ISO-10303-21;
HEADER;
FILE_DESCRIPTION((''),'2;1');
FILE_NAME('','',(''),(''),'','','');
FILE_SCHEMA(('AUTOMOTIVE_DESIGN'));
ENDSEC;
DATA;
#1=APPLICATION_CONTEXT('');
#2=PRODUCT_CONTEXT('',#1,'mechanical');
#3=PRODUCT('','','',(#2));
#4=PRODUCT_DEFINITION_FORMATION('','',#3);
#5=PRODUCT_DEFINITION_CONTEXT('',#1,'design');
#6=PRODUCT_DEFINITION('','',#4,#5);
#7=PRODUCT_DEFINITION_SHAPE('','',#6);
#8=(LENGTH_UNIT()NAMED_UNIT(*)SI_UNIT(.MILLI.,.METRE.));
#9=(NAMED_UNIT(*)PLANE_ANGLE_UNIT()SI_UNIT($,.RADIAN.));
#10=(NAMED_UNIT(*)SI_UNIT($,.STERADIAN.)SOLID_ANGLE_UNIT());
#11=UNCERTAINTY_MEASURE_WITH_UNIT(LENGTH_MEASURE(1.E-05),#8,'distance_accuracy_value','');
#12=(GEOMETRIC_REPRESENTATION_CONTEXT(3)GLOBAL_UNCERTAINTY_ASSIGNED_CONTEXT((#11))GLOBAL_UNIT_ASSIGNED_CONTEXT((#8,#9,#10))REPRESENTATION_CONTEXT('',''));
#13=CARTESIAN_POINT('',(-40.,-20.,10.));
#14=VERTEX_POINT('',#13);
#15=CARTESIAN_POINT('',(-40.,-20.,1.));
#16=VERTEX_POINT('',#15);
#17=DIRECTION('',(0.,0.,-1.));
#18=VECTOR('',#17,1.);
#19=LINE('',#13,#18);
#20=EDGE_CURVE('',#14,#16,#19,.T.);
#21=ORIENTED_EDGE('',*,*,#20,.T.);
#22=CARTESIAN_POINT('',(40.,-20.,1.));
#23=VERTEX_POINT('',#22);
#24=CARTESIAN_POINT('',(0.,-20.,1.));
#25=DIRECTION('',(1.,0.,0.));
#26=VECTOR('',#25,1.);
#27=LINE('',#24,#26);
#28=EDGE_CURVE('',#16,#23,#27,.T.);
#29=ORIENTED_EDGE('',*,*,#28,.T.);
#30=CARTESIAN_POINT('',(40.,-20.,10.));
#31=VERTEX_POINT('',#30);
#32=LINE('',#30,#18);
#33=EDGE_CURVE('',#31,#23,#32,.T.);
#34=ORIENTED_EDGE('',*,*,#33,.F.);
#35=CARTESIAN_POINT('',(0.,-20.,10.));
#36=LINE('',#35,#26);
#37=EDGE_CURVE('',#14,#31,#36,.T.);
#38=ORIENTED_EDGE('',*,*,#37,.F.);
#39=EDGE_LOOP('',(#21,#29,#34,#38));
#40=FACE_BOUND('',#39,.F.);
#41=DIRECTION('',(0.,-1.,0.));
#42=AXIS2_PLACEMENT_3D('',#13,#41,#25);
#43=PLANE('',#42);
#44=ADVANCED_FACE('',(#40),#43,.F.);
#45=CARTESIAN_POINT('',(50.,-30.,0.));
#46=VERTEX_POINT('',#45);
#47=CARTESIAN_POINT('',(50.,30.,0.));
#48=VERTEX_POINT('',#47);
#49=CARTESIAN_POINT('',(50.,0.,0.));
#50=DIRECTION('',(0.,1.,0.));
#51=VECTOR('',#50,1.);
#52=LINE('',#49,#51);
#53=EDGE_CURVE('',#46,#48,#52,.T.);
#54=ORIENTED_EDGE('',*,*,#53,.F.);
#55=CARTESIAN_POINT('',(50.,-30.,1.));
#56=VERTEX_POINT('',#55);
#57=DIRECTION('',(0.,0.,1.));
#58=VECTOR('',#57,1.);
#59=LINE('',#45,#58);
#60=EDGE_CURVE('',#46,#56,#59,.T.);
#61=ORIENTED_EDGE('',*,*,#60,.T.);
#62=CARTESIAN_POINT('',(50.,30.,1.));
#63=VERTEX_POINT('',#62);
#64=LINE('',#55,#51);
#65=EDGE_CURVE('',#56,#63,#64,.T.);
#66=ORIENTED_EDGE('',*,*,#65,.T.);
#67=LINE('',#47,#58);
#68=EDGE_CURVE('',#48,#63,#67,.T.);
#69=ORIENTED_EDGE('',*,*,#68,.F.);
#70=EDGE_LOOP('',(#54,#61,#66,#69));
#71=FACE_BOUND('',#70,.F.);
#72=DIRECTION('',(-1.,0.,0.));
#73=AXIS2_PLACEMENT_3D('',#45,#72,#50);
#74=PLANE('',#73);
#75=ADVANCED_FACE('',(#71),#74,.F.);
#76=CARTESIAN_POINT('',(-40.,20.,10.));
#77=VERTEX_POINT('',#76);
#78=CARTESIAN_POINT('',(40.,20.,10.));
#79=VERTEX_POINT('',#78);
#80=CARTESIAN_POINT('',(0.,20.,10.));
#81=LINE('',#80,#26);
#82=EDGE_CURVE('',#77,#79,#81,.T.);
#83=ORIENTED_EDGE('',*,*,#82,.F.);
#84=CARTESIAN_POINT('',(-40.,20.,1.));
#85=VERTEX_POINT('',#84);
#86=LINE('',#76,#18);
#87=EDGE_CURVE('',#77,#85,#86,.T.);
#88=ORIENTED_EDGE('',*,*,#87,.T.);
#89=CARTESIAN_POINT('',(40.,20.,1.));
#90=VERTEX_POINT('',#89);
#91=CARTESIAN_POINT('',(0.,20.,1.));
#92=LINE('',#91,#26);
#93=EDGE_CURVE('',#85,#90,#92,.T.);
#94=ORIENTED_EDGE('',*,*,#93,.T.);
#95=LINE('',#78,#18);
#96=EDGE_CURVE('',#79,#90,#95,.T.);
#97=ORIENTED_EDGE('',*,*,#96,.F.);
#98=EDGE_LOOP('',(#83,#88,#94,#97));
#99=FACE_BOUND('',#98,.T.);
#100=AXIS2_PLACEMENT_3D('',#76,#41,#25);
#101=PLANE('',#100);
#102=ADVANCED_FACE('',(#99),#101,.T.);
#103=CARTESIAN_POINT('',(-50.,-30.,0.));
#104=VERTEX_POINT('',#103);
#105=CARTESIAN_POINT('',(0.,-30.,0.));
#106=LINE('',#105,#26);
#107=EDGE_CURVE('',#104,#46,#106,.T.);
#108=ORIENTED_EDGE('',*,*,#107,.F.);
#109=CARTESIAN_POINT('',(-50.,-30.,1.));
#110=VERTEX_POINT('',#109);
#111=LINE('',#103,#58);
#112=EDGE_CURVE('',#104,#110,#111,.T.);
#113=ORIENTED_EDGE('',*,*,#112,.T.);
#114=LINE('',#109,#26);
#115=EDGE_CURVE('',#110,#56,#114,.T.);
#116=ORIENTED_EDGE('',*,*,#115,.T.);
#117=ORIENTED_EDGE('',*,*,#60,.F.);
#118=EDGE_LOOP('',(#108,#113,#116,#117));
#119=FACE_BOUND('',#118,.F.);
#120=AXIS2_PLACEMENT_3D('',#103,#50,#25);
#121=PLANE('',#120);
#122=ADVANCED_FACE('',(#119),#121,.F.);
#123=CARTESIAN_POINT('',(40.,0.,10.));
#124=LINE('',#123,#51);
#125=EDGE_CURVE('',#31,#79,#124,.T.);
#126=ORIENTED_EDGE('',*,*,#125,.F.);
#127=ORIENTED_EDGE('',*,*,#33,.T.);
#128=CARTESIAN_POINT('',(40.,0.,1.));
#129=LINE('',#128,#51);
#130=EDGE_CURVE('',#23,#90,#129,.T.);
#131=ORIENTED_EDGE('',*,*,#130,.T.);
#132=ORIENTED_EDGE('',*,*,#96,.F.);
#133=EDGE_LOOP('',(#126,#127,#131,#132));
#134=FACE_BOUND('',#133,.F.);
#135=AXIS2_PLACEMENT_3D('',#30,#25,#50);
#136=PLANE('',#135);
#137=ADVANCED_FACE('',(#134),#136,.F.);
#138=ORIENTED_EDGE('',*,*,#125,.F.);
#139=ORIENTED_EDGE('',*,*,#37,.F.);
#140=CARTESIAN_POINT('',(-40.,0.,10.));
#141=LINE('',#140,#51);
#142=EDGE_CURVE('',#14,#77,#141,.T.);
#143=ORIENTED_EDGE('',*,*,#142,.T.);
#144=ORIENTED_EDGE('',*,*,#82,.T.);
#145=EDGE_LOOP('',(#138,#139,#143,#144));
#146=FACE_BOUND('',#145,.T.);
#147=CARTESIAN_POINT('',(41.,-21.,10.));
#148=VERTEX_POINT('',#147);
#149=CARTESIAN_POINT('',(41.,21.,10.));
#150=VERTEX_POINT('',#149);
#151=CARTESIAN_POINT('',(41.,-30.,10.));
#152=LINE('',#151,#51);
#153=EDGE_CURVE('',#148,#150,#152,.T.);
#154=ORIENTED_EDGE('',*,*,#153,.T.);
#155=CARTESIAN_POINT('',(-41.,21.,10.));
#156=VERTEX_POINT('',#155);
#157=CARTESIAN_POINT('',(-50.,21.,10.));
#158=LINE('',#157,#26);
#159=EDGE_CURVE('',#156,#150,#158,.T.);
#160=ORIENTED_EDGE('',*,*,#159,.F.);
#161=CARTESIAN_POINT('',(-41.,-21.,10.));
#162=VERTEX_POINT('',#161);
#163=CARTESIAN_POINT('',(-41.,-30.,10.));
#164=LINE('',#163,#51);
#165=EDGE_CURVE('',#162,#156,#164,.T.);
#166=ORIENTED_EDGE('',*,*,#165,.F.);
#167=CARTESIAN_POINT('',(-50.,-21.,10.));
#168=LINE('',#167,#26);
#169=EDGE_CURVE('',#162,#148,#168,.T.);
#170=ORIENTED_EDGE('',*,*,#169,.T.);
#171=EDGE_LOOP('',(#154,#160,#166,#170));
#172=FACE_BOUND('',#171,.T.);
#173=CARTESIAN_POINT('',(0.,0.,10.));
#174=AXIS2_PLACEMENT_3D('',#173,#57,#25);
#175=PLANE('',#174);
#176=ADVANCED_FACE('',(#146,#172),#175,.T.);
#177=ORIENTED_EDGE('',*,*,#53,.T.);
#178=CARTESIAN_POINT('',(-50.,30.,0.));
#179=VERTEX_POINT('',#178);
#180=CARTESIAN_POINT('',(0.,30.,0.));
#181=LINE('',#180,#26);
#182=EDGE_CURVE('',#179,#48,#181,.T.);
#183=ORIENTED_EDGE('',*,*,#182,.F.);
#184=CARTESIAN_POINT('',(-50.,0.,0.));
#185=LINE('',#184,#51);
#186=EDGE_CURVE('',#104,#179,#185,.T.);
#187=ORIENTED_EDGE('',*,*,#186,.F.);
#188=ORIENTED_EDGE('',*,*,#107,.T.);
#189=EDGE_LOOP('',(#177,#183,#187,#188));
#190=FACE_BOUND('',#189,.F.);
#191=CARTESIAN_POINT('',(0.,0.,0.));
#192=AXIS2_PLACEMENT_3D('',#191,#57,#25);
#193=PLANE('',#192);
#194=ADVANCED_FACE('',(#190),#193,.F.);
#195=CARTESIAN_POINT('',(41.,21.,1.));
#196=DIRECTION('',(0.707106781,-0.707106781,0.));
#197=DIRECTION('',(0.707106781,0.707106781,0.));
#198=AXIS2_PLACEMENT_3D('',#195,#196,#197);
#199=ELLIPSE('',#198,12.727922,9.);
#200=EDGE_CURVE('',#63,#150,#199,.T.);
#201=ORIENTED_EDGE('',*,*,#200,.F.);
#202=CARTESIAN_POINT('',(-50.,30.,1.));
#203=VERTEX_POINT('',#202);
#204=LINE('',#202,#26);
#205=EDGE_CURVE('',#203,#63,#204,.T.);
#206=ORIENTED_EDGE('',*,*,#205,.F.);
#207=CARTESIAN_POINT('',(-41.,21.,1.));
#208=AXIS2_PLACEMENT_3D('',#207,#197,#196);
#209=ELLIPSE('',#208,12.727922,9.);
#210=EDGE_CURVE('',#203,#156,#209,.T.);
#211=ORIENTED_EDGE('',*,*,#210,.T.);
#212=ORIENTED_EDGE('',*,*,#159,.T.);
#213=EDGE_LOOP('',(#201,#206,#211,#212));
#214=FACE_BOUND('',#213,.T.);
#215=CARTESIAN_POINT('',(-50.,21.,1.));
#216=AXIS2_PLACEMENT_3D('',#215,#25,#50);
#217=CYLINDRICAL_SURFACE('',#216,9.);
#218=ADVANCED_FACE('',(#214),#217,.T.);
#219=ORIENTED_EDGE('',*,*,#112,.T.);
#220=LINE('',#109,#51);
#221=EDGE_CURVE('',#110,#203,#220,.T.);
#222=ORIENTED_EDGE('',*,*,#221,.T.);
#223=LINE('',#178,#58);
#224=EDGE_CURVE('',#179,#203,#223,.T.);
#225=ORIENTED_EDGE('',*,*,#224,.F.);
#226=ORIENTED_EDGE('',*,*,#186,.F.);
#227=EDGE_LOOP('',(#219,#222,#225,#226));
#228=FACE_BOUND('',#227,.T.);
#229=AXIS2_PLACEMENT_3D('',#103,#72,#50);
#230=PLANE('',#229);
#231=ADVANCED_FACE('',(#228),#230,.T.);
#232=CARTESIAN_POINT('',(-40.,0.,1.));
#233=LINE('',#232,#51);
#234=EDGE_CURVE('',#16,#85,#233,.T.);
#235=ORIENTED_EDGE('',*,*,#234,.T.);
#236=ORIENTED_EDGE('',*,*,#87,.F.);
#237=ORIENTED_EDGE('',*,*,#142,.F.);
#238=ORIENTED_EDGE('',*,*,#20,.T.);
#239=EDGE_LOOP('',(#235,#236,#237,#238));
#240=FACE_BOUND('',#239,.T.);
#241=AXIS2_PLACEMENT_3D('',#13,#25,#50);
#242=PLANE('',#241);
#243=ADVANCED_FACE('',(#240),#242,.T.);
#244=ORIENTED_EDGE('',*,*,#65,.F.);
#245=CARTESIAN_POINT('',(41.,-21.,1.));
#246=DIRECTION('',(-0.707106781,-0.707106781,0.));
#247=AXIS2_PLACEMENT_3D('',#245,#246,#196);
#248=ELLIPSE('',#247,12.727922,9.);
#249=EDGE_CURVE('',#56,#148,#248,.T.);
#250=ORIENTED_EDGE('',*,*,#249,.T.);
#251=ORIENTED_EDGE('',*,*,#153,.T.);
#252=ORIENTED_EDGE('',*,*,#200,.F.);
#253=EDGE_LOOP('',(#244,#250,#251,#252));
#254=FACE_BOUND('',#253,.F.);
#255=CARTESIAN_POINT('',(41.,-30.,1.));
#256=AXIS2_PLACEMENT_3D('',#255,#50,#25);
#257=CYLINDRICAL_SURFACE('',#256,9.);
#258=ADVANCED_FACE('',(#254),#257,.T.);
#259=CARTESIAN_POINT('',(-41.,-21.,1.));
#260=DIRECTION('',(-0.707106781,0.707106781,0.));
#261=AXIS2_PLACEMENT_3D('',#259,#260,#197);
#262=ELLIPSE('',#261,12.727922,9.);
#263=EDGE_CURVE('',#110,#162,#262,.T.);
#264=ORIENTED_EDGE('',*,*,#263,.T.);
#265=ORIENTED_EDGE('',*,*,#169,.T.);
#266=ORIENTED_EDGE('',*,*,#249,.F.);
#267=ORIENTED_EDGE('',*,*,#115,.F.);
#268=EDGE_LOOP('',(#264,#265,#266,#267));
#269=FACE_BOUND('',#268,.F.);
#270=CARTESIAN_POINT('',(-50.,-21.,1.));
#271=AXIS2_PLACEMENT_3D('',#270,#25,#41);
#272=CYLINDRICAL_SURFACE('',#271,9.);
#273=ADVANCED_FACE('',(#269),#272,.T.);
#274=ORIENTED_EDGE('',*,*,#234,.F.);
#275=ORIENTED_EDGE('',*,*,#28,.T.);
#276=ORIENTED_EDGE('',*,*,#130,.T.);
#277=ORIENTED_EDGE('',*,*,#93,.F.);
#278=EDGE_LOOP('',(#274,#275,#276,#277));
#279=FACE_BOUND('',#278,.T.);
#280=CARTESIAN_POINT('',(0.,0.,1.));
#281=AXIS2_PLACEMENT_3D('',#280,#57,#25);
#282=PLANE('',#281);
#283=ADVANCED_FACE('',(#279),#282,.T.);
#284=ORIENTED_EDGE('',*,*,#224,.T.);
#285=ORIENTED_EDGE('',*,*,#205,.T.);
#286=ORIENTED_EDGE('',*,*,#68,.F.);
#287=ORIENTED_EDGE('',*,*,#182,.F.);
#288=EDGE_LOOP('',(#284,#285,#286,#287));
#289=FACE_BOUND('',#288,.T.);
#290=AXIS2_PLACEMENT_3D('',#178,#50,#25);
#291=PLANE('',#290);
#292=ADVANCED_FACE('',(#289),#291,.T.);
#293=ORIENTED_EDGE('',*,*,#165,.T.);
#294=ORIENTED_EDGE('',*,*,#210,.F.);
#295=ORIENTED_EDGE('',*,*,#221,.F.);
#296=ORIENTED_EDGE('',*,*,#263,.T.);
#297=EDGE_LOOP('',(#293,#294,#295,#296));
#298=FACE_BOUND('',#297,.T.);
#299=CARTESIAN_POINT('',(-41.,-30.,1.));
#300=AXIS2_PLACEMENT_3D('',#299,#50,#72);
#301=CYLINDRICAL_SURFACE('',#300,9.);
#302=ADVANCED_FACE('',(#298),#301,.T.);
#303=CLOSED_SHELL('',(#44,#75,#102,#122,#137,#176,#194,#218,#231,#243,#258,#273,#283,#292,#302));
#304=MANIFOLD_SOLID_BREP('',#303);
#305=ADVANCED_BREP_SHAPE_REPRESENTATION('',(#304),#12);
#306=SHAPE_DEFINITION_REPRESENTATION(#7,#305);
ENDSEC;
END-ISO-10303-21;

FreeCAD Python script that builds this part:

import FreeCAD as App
import Part
import Sketcher
Q = App.Units.Quantity


def edges_at(feature, points):
    """Names of the edges that pass closest to the given points."""
    edges = feature.Shape.Edges
    near = lambda p: min(range(len(edges)), key=lambda i: edges[i].distToShape(Part.Vertex(*p))[0])
    return sorted({f"Edge{near(p) + 1}" for p in points})

doc = App.newDocument("Part")
body = doc.addObject("PartDesign::Body", "Body")

# Sketch on XY plane
sketch1 = body.newObject("Sketcher::SketchObject", "Sketch")
sketch1.AttachmentSupport = (doc.getObject("XY_Plane"), [""])
sketch1.MapMode = "FlatFace"
sketch1.addGeometry(Part.LineSegment(App.Vector(-50, 30, 0), App.Vector(-50, -30, 0)), False)
sketch1.addGeometry(Part.LineSegment(App.Vector(-50, -30, 0), App.Vector(50, -30, 0)), False)
sketch1.addGeometry(Part.LineSegment(App.Vector(50, -30, 0), App.Vector(50, 30, 0)), False)
sketch1.addGeometry(Part.LineSegment(App.Vector(50, 30, 0), App.Vector(-50, 30, 0)), False)
sketch1.addConstraint(Sketcher.Constraint("Coincident", 0, 2, 1, 1))
sketch1.addConstraint(Sketcher.Constraint("Coincident", 1, 2, 2, 1))
sketch1.addConstraint(Sketcher.Constraint("Coincident", 2, 2, 3, 1))
sketch1.addConstraint(Sketcher.Constraint("Coincident", 3, 2, 0, 1))
sketch1.addConstraint(Sketcher.Constraint("Vertical", 0))
sketch1.addConstraint(Sketcher.Constraint("Horizontal", 1))
sketch1.addConstraint(Sketcher.Constraint("Vertical", 2))
sketch1.addConstraint(Sketcher.Constraint("Horizontal", 3))
sketch1.addConstraint(Sketcher.Constraint("Symmetric", 0, 2, 2, 2, -1, 1))
sketch1.addConstraint(Sketcher.Constraint("DistanceX", 1, 1, 1, 2, Q("100 mm")))
sketch1.addConstraint(Sketcher.Constraint("DistanceY", 0, 2, 0, 1, Q("60 mm")))
pad1 = body.newObject("PartDesign::Pad", "Pad")
pad1.Profile = sketch1
pad1.Length = 10
doc.recompute()

fillet = body.newObject("PartDesign::Fillet", "Fillet")
fillet.Base = (pad1, edges_at(pad1, [
    (0, -30, 10),
    (50, 0, 10),
    (0, 30, 10),
    (-50, 0, 10),
]))
fillet.Radius = 9

# Sketch on XY plane
sketch2 = body.newObject("Sketcher::SketchObject", "Sketch001")
sketch2.AttachmentSupport = (doc.getObject("XY_Plane"), [""])
sketch2.MapMode = "FlatFace"
sketch2.AttachmentOffset = App.Placement(App.Vector(0, 0, 10), App.Rotation())
sketch2.addGeometry(Part.LineSegment(App.Vector(-40, 20, 0), App.Vector(-40, -20, 0)), False)
sketch2.addGeometry(Part.LineSegment(App.Vector(-40, -20, 0), App.Vector(40, -20, 0)), False)
sketch2.addGeometry(Part.LineSegment(App.Vector(40, -20, 0), App.Vector(40, 20, 0)), False)
sketch2.addGeometry(Part.LineSegment(App.Vector(40, 20, 0), App.Vector(-40, 20, 0)), False)
sketch2.addConstraint(Sketcher.Constraint("Coincident", 0, 2, 1, 1))
sketch2.addConstraint(Sketcher.Constraint("Coincident", 1, 2, 2, 1))
sketch2.addConstraint(Sketcher.Constraint("Coincident", 2, 2, 3, 1))
sketch2.addConstraint(Sketcher.Constraint("Coincident", 3, 2, 0, 1))
sketch2.addConstraint(Sketcher.Constraint("Vertical", 0))
sketch2.addConstraint(Sketcher.Constraint("Horizontal", 1))
sketch2.addConstraint(Sketcher.Constraint("Vertical", 2))
sketch2.addConstraint(Sketcher.Constraint("Horizontal", 3))
sketch2.addConstraint(Sketcher.Constraint("Symmetric", 0, 2, 2, 2, -1, 1))
sketch2.addConstraint(Sketcher.Constraint("DistanceX", 1, 1, 1, 2, Q("80 mm")))
sketch2.addConstraint(Sketcher.Constraint("DistanceY", 0, 2, 0, 1, Q("40 mm")))
pocket1 = body.newObject("PartDesign::Pocket", "Pocket")
pocket1.Profile = sketch2
pocket1.Length = 9

doc.recompute()
